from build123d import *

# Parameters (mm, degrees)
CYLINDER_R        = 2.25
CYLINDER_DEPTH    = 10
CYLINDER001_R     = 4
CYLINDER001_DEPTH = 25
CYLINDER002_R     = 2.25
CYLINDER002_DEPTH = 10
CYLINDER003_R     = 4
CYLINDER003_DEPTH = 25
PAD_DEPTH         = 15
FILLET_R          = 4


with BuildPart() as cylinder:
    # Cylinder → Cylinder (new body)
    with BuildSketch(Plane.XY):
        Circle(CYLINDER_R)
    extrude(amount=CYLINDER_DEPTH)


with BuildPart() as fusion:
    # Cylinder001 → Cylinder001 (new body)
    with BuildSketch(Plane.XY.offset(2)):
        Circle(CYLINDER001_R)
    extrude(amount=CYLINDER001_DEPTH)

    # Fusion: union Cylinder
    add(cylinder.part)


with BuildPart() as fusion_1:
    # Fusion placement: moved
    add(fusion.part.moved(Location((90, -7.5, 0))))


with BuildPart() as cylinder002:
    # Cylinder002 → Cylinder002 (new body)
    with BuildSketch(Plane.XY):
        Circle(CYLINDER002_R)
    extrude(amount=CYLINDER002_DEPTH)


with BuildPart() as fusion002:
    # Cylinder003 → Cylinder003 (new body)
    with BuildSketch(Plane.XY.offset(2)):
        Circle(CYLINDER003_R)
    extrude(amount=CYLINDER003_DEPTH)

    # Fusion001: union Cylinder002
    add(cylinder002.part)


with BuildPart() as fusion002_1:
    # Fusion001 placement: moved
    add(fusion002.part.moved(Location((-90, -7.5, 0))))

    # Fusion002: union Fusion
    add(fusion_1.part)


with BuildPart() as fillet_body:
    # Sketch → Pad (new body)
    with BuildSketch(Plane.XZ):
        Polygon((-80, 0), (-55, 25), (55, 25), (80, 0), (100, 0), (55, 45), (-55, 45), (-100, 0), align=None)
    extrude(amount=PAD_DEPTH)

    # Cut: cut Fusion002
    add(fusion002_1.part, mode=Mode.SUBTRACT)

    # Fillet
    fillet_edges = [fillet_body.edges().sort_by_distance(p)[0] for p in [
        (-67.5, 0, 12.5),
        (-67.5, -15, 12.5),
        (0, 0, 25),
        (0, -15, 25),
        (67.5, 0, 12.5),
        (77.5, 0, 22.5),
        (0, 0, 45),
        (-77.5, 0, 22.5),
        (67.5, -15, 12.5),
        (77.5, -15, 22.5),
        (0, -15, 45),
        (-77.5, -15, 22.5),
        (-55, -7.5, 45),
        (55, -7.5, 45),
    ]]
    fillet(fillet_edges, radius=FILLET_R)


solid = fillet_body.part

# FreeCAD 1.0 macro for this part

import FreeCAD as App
import Part
import Sketcher
from FreeCAD import Vector
Q = App.Units.Quantity


def edges_at(feature, points):
    """Names of the edges that pass closest to the given points."""
    edges = feature.Shape.Edges
    near = lambda p: min(range(len(edges)), key=lambda i: edges[i].distToShape(Part.Vertex(*p))[0])
    return sorted({f"Edge{near(p) + 1}" for p in points})


def add_polygon(sketch, points):
    """Adds a closed chain of lines whose ends are joined by coincident constraints."""
    first, n = sketch.GeometryCount, len(points)
    for a, b in zip(points, points[1:] + points[:1]):
        sketch.addGeometry(Part.LineSegment(App.Vector(*a, 0), App.Vector(*b, 0)), False)
    for i in range(n):
        sketch.addConstraint(Sketcher.Constraint("Coincident", first + i, 2, first + (i + 1) % n, 1))

doc = App.newDocument("Part")
body = doc.addObject("PartDesign::Body", "Body")

sketch1 = body.newObject("Sketcher::SketchObject", "Sketch")
sketch1.AttachmentSupport = (doc.getObject("XY_Plane"), [""])
sketch1.MapMode = "FlatFace"
sketch1.addGeometry(Part.Circle(Vector(0, 0, 0), Vector(0, 0, 1), 2.25), False)
sketch1.addConstraint([
    Sketcher.Constraint("Coincident", 0, 3, -1, 1),
    Sketcher.Constraint("Diameter", 0, Q("4.5 mm")),
])
pad1 = body.newObject("PartDesign::Pad", "Pad")
pad1.Profile = sketch1
pad1.Length = 10
body2 = doc.addObject("PartDesign::Body", "Body001")

sketch2 = body2.newObject("Sketcher::SketchObject", "Sketch001")
sketch2.AttachmentSupport = (doc.getObject("XY_Plane001"), [""])
sketch2.MapMode = "FlatFace"
sketch2.AttachmentOffset = App.Placement(Vector(0, 0, 2), App.Rotation())
sketch2.addGeometry(Part.Circle(Vector(0, 0, 0), Vector(0, 0, 1), 4), False)
sketch2.addConstraint([
    Sketcher.Constraint("Coincident", 0, 3, -1, 1),
    Sketcher.Constraint("Diameter", 0, Q("8 mm")),
])
pad2 = body2.newObject("PartDesign::Pad", "Pad001")
pad2.Profile = sketch2
pad2.Length = 25
doc.recompute()

boolean = body2.newObject("PartDesign::Boolean", "Boolean")
boolean.Type = "Fuse"
boolean.addObjects([body])
body3 = doc.addObject("PartDesign::Body", "Body002")
doc.recompute()

body2.Placement = App.Placement(Vector(90, -7.5, 0), App.Rotation(Vector(0, 0, 1), 0))
boolean2 = body3.newObject("PartDesign::Boolean", "Boolean001")
boolean2.Type = "Fuse"
boolean2.addObjects([body2])
body4 = doc.addObject("PartDesign::Body", "Body003")

sketch3 = body4.newObject("Sketcher::SketchObject", "Sketch002")
sketch3.AttachmentSupport = (doc.getObject("XY_Plane003"), [""])
sketch3.MapMode = "FlatFace"
sketch3.addGeometry(Part.Circle(Vector(0, 0, 0), Vector(0, 0, 1), 2.25), False)
sketch3.addConstraint([
    Sketcher.Constraint("Coincident", 0, 3, -1, 1),
    Sketcher.Constraint("Diameter", 0, Q("4.5 mm")),
])
pad3 = body4.newObject("PartDesign::Pad", "Pad002")
pad3.Profile = sketch3
pad3.Length = 10
body5 = doc.addObject("PartDesign::Body", "Body004")

sketch4 = body5.newObject("Sketcher::SketchObject", "Sketch003")
sketch4.AttachmentSupport = (doc.getObject("XY_Plane004"), [""])
sketch4.MapMode = "FlatFace"
sketch4.AttachmentOffset = App.Placement(Vector(0, 0, 2), App.Rotation())
sketch4.addGeometry(Part.Circle(Vector(0, 0, 0), Vector(0, 0, 1), 4), False)
sketch4.addConstraint([
    Sketcher.Constraint("Coincident", 0, 3, -1, 1),
    Sketcher.Constraint("Diameter", 0, Q("8 mm")),
])
pad4 = body5.newObject("PartDesign::Pad", "Pad003")
pad4.Profile = sketch4
pad4.Length = 25
doc.recompute()

boolean3 = body5.newObject("PartDesign::Boolean", "Boolean002")
boolean3.Type = "Fuse"
boolean3.addObjects([body4])
body6 = doc.addObject("PartDesign::Body", "Body005")
body6.AllowCompound = True
doc.recompute()

body5.Placement = App.Placement(Vector(-90, -7.5, 0), App.Rotation(Vector(0, 0, 1), 0))
boolean4 = body6.newObject("PartDesign::Boolean", "Boolean003")
boolean4.Type = "Fuse"
boolean4.addObjects([body5])
doc.recompute()

boolean5 = body6.newObject("PartDesign::Boolean", "Boolean004")
boolean5.Type = "Fuse"
boolean5.addObjects([body3])
body7 = doc.addObject("PartDesign::Body", "Body006")

sketch5 = body7.newObject("Sketcher::SketchObject", "Sketch004")
sketch5.AttachmentSupport = (doc.getObject("XZ_Plane006"), [""])
sketch5.MapMode = "FlatFace"
add_polygon(sketch5, [(-80, 0), (-55, 25), (55, 25), (80, 0), (100, 0), (55, 45), (-55, 45), (-100, 0)])
sketch5.addConstraint([
    Sketcher.Constraint("Horizontal", 1),
    Sketcher.Constraint("Horizontal", 3),
    Sketcher.Constraint("Horizontal", 5),
    Sketcher.Constraint("Horizontal", 7),
    Sketcher.Constraint("Symmetric", 3, 2, 6, 2, -1, 1),
    Sketcher.Constraint("Symmetric", 2, 2, 7, 2, -2),
    Sketcher.Constraint("Perpendicular", 0, 2),
    Sketcher.Constraint("Parallel", 2, 4),
    Sketcher.Constraint("Perpendicular", 4, 6),
    Sketcher.Constraint("Vertical", 1, 2, 4, 2),
    Sketcher.Constraint("Vertical", 0, 2, 5, 2),
    Sketcher.Constraint("DistanceX", 1, 1, 1, 2, Q("110 mm")),
    Sketcher.Constraint("DistanceX", 3, 1, 3, 2, Q("20 mm")),
    Sketcher.Constraint("DistanceY", -1, 1, 0, 2, Q("25 mm")),
])
pad5 = body7.newObject("PartDesign::Pad", "Pad004")
pad5.Profile = sketch5
pad5.Length = 15
doc.recompute()

boolean6 = body7.newObject("PartDesign::Boolean", "Boolean005")
boolean6.Type = "Cut"
boolean6.addObjects([body6])
doc.recompute()

fillet = body7.newObject("PartDesign::Fillet", "Fillet")
fillet.Base = (boolean6, edges_at(boolean6, [
    (-67.5, 0, 12.5),
    (-67.5, -15, 12.5),
    (0, 0, 25),
    (0, -15, 25),
    (67.5, 0, 12.5),
    (77.5, 0, 22.5),
    (0, 0, 45),
    (-77.5, 0, 22.5),
    (67.5, -15, 12.5),
    (77.5, -15, 22.5),
    (0, -15, 45),
    (-77.5, -15, 22.5),
    (-55, -7.5, 45),
    (55, -7.5, 45),
]))
fillet.Radius = 4

doc.recompute()
